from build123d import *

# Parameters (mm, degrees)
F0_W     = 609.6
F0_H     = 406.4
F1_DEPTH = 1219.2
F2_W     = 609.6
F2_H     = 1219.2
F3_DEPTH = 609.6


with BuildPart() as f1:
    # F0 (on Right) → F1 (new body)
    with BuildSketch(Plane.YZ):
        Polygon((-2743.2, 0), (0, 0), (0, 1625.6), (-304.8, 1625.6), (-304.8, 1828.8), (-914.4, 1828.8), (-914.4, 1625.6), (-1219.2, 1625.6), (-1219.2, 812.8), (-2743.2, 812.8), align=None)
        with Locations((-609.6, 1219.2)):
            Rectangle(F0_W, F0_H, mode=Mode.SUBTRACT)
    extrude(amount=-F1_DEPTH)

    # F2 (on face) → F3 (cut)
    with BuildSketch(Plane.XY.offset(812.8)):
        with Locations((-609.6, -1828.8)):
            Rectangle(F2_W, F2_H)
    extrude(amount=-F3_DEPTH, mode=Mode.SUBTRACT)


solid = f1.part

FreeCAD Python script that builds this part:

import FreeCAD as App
import Part
import Sketcher

V = App.Vector
Q = App.Units.Quantity

doc = App.newDocument("Part")
body = doc.addObject("PartDesign::Body", "Body")

# Sketch on YZ plane
sketch1 = body.newObject("Sketcher::SketchObject", "Sketch")
sketch1.AttachmentSupport = (doc.getObject("YZ_Plane"), [""])
sketch1.MapMode = "FlatFace"
sketch1.addGeometry(Part.LineSegment(V(-2743, 0, 0), V(0, 0, 0)), False)
sketch1.addGeometry(Part.LineSegment(V(0, 0, 0), V(0, 1626, 0)), False)
sketch1.addGeometry(Part.LineSegment(V(0, 1626, 0), V(-305, 1626, 0)), False)
sketch1.addGeometry(Part.LineSegment(V(-305, 1626, 0), V(-305, 1829, 0)), False)
sketch1.addGeometry(Part.LineSegment(V(-305, 1829, 0), V(-914, 1829, 0)), False)
sketch1.addGeometry(Part.LineSegment(V(-914, 1829, 0), V(-914, 1626, 0)), False)
sketch1.addGeometry(Part.LineSegment(V(-914, 1626, 0), V(-1219, 1626, 0)), False)
sketch1.addGeometry(Part.LineSegment(V(-1219, 1626, 0), V(-1219, 813, 0)), False)
sketch1.addGeometry(Part.LineSegment(V(-1219, 813, 0), V(-2743, 813, 0)), False)
sketch1.addGeometry(Part.LineSegment(V(-2743, 813, 0), V(-2743, 0, 0)), False)
sketch1.addGeometry(Part.LineSegment(V(-305, 1016, 0), V(-914, 1016, 0)), False)
sketch1.addGeometry(Part.LineSegment(V(-914, 1016, 0), V(-914, 1422, 0)), False)
sketch1.addGeometry(Part.LineSegment(V(-914, 1422, 0), V(-305, 1422, 0)), False)
sketch1.addGeometry(Part.LineSegment(V(-305, 1422, 0), V(-305, 1016, 0)), False)
sketch1.addConstraint(Sketcher.Constraint("Coincident", 0, 2, 1, 1))
sketch1.addConstraint(Sketcher.Constraint("Coincident", 1, 2, 2, 1))
sketch1.addConstraint(Sketcher.Constraint("Coincident", 2, 2, 3, 1))
sketch1.addConstraint(Sketcher.Constraint("Coincident", 3, 2, 4, 1))
sketch1.addConstraint(Sketcher.Constraint("Coincident", 4, 2, 5, 1))
sketch1.addConstraint(Sketcher.Constraint("Coincident", 5, 2, 6, 1))
sketch1.addConstraint(Sketcher.Constraint("Coincident", 6, 2, 7, 1))
sketch1.addConstraint(Sketcher.Constraint("Coincident", 7, 2, 8, 1))
sketch1.addConstraint(Sketcher.Constraint("Coincident", 8, 2, 9, 1))
sketch1.addConstraint(Sketcher.Constraint("Coincident", 9, 2, 0, 1))
sketch1.addConstraint(Sketcher.Constraint("Coincident", 10, 2, 11, 1))
sketch1.addConstraint(Sketcher.Constraint("Coincident", 11, 2, 12, 1))
sketch1.addConstraint(Sketcher.Constraint("Coincident", 12, 2, 13, 1))
sketch1.addConstraint(Sketcher.Constraint("Coincident", 13, 2, 10, 1))
sketch1.addConstraint(Sketcher.Constraint("Horizontal", 0))
sketch1.addConstraint(Sketcher.Constraint("Vertical", 1))
sketch1.addConstraint(Sketcher.Constraint("Horizontal", 2))
sketch1.addConstraint(Sketcher.Constraint("Vertical", 3))
sketch1.addConstraint(Sketcher.Constraint("Horizontal", 4))
sketch1.addConstraint(Sketcher.Constraint("Vertical", 5))
sketch1.addConstraint(Sketcher.Constraint("Horizontal", 6))
sketch1.addConstraint(Sketcher.Constraint("Vertical", 7))
sketch1.addConstraint(Sketcher.Constraint("Horizontal", 8))
sketch1.addConstraint(Sketcher.Constraint("Vertical", 9))
sketch1.addConstraint(Sketcher.Constraint("Horizontal", 10))
sketch1.addConstraint(Sketcher.Constraint("Vertical", 11))
sketch1.addConstraint(Sketcher.Constraint("Horizontal", 12))
sketch1.addConstraint(Sketcher.Constraint("Vertical", 13))
sketch1.addConstraint(Sketcher.Constraint("Coincident", 0, 2, -1, 1))
sketch1.addConstraint(Sketcher.Constraint("Horizontal", 2, 2, 5, 2))
sketch1.addConstraint(Sketcher.Constraint("Vertical", 5, 2, 10, 2))
sketch1.addConstraint(Sketcher.Constraint("Vertical", 3, 2, 12, 2))
sketch1.addConstraint(Sketcher.Constraint("Equal", 2, 6))
sketch1.addConstraint(Sketcher.Constraint("Equal", 7, 9))
sketch1.addConstraint(Sketcher.Constraint("DistanceX", 0, 1, 0, 2, Q("108 in")))
sketch1.addConstraint(Sketcher.Constraint("DistanceX", 2, 2, 2, 1, Q("12 in")))
sketch1.addConstraint(Sketcher.Constraint("DistanceX", 4, 2, 4, 1, Q("24 in")))
sketch1.addConstraint(Sketcher.Constraint("DistanceY", 1, 1, 1, 2, Q("64 in")))
sketch1.addConstraint(Sketcher.Constraint("DistanceY", 3, 1, 3, 2, Q("8 in")))
sketch1.addConstraint(Sketcher.Constraint("DistanceY", 11, 1, 11, 2, Q("16 in")))
sketch1.addConstraint(Sketcher.Constraint("DistanceY", -1, 1, 10, 2, Q("40 in")))
pad1 = body.newObject("PartDesign::Pad", "Pad")
pad1.Profile = sketch1
pad1.Length = Q("48 in")
pad1.Reversed = True

# Sketch on XY plane
sketch2 = body.newObject("Sketcher::SketchObject", "Sketch001")
sketch2.AttachmentSupport = (doc.getObject("XY_Plane"), [""])
sketch2.MapMode = "FlatFace"
sketch2.AttachmentOffset = App.Placement(V(0, 0, 32 * 25.4), App.Rotation())
sketch2.addGeometry(Part.LineSegment(V(-914, -1219, 0), V(-914, -2438, 0)), False)
sketch2.addGeometry(Part.LineSegment(V(-914, -2438, 0), V(-305, -2438, 0)), False)
sketch2.addGeometry(Part.LineSegment(V(-305, -2438, 0), V(-305, -1219, 0)), False)
sketch2.addGeometry(Part.LineSegment(V(-305, -1219, 0), V(-914, -1219, 0)), False)
sketch2.addConstraint(Sketcher.Constraint("Coincident", 0, 2, 1, 1))
sketch2.addConstraint(Sketcher.Constraint("Coincident", 1, 2, 2, 1))
sketch2.addConstraint(Sketcher.Constraint("Coincident", 2, 2, 3, 1))
sketch2.addConstraint(Sketcher.Constraint("Coincident", 3, 2, 0, 1))
sketch2.addConstraint(Sketcher.Constraint("Vertical", 0))
sketch2.addConstraint(Sketcher.Constraint("Horizontal", 1))
sketch2.addConstraint(Sketcher.Constraint("Vertical", 2))
sketch2.addConstraint(Sketcher.Constraint("Horizontal", 3))
sketch2.addConstraint(Sketcher.Constraint("DistanceX", 1, 1, 1, 2, Q("24 in")))
sketch2.addConstraint(Sketcher.Constraint("DistanceY", 0, 2, 0, 1, Q("48 in")))
sketch2.addConstraint(Sketcher.Constraint("DistanceX", 0, 2, -1, 1, Q("36 in")))
sketch2.addConstraint(Sketcher.Constraint("DistanceY", 0, 2, -1, 1, Q("96 in")))
pocket1 = body.newObject("PartDesign::Pocket", "Pocket")
pocket1.Profile = sketch2
pocket1.Length = Q("24 in")

doc.recompute()
